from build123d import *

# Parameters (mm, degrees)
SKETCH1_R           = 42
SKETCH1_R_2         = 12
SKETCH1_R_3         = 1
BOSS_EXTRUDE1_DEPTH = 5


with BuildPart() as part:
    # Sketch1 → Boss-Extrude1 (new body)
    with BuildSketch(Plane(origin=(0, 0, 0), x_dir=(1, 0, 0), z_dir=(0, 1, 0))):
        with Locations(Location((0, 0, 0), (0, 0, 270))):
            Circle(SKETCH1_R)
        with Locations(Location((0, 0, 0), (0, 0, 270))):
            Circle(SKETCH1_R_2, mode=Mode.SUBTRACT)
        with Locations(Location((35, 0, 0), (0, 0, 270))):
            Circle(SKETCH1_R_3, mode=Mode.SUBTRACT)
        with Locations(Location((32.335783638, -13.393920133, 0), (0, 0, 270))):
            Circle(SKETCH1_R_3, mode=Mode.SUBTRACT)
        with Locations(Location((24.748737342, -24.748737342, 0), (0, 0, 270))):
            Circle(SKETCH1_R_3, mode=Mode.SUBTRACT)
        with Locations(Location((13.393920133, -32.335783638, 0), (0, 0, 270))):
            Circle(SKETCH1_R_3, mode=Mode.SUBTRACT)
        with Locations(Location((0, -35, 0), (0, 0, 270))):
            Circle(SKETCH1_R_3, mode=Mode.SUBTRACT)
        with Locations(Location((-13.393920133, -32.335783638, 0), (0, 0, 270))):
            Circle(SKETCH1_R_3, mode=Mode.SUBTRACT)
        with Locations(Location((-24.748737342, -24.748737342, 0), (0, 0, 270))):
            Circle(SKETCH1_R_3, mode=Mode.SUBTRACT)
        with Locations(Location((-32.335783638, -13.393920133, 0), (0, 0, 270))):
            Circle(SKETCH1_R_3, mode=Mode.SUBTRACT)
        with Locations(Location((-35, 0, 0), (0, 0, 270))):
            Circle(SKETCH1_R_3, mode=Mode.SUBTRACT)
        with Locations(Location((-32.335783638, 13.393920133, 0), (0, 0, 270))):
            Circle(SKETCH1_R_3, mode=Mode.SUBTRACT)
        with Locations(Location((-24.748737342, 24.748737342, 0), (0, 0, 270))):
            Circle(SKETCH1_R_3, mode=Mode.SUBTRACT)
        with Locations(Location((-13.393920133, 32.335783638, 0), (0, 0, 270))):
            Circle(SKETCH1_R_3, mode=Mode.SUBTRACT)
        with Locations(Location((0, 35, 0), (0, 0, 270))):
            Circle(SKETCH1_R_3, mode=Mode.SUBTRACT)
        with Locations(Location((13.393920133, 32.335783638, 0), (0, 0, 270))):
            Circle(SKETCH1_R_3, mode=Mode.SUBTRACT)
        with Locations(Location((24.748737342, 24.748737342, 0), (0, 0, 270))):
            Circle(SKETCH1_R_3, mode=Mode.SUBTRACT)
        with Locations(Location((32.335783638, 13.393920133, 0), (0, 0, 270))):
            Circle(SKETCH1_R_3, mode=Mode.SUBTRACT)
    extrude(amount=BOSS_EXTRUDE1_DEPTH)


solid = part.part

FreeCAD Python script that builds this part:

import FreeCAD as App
import Part
import Sketcher

doc = App.newDocument("Part")
body = doc.addObject("PartDesign::Body", "Body")

# Sketch on XZ plane
sketch1 = body.newObject("Sketcher::SketchObject", "Sketch")
sketch1.AttachmentSupport = (doc.getObject("XZ_Plane"), [""])
sketch1.MapMode = "FlatFace"
sketch1.addGeometry([
    Part.Circle(App.Vector(0, 0, 0), App.Vector(0, 0, 1), 42),  # 0
    Part.Circle(App.Vector(-24.7, -24.7, 0), App.Vector(0, 0, 1), 1),  # 1
    Part.Circle(App.Vector(-32.3, -13.4, 0), App.Vector(0, 0, 1), 1),  # 2
    Part.Circle(App.Vector(-13.4, -32.3, 0), App.Vector(0, 0, 1), 1),  # 3
    Part.Circle(App.Vector(0, -35, 0), App.Vector(0, 0, 1), 1),  # 4
    Part.Circle(App.Vector(-35, 0, 0), App.Vector(0, 0, 1), 1),  # 5
    Part.Circle(App.Vector(-32.3, 13.4, 0), App.Vector(0, 0, 1), 1),  # 6
    Part.Circle(App.Vector(-24.7, 24.7, 0), App.Vector(0, 0, 1), 1),  # 7
    Part.Circle(App.Vector(-13.4, 32.3, 0), App.Vector(0, 0, 1), 1),  # 8
    Part.Circle(App.Vector(13.4, -32.3, 0), App.Vector(0, 0, 1), 1),  # 9
    Part.Circle(App.Vector(24.7, -24.7, 0), App.Vector(0, 0, 1), 1),  # 10
    Part.Circle(App.Vector(32.3, -13.4, 0), App.Vector(0, 0, 1), 1),  # 11
    Part.Circle(App.Vector(35, 0, 0), App.Vector(0, 0, 1), 1),  # 12
    Part.Circle(App.Vector(0, 0, 0), App.Vector(0, 0, 1), 12),  # 13
    Part.Circle(App.Vector(0, 35, 0), App.Vector(0, 0, 1), 1),  # 14
    Part.Circle(App.Vector(13.4, 32.3, 0), App.Vector(0, 0, 1), 1),  # 15
    Part.Circle(App.Vector(32.3, 13.4, 0), App.Vector(0, 0, 1), 1),  # 16
    Part.Circle(App.Vector(24.7, 24.7, 0), App.Vector(0, 0, 1), 1),  # 17
], False)
sketch1.addConstraint([
    Sketcher.Constraint("Coincident", 0, 3, -1, 1),
    Sketcher.Constraint("Coincident", 13, 3, -1, 1),
    Sketcher.Constraint("Equal", 1, 2),
    Sketcher.Constraint("Equal", 2, 3),
    Sketcher.Constraint("Equal", 3, 4),
    Sketcher.Constraint("Equal", 4, 5),
    Sketcher.Constraint("Equal", 5, 6),
    Sketcher.Constraint("Equal", 6, 7),
    Sketcher.Constraint("Equal", 7, 8),
    Sketcher.Constraint("Equal", 8, 9),
    Sketcher.Constraint("Equal", 9, 10),
    Sketcher.Constraint("Equal", 10, 11),
    Sketcher.Constraint("Equal", 11, 12),
    Sketcher.Constraint("Equal", 12, 14),
    Sketcher.Constraint("Equal", 14, 15),
    Sketcher.Constraint("Equal", 15, 16),
    Sketcher.Constraint("Equal", 16, 17),
    Sketcher.Constraint("Symmetric", 8, 3, 9, 3, -1, 1),
    Sketcher.Constraint("Symmetric", 7, 3, 10, 3, -1, 1),
    Sketcher.Constraint("Symmetric", 6, 3, 11, 3, -1, 1),
    Sketcher.Constraint("Symmetric", 5, 3, 12, 3, -1, 1),
    Sketcher.Constraint("Symmetric", 4, 3, 14, 3, -1, 1),
    Sketcher.Constraint("Symmetric", 3, 3, 15, 3, -1, 1),
    Sketcher.Constraint("Symmetric", 2, 3, 16, 3, -1, 1),
    Sketcher.Constraint("Symmetric", 1, 3, 17, 3, -1, 1),
    Sketcher.Constraint("Symmetric", 3, 3, 9, 3, -2),
    Sketcher.Constraint("Symmetric", 1, 3, 10, 3, -2),
    Sketcher.Constraint("Symmetric", 2, 3, 11, 3, -2),
    Sketcher.Constraint("PointOnObject", 4, 3, -2),
    Sketcher.Constraint("PointOnObject", 5, 3, -1),
    Sketcher.Constraint("Diameter", 0, 84.0),
    Sketcher.Constraint("Diameter", 1, 2.0),
    Sketcher.Constraint("Diameter", 13, 24.0),
    Sketcher.Constraint("DistanceY", 4, 3, -1, 1, 35.0),
    Sketcher.Constraint("DistanceX", 5, 3, -1, 1, 35.0),
    Sketcher.Constraint("DistanceY", 2, 3, -1, 1, 13.39392),
    Sketcher.Constraint("DistanceX", 3, 3, -1, 1, 13.39392),
    Sketcher.Constraint("DistanceX", 1, 3, -1, 1, 24.748737),
    Sketcher.Constraint("DistanceY", 1, 3, -1, 1, 24.748737),
    Sketcher.Constraint("DistanceX", 2, 3, -1, 1, 32.335784),
    Sketcher.Constraint("DistanceY", 3, 3, -1, 1, 32.335784),
])
pad1 = body.newObject("PartDesign::Pad", "Pad")
pad1.Profile = sketch1
pad1.Length = 5
pad1.Reversed = True

doc.recompute()
